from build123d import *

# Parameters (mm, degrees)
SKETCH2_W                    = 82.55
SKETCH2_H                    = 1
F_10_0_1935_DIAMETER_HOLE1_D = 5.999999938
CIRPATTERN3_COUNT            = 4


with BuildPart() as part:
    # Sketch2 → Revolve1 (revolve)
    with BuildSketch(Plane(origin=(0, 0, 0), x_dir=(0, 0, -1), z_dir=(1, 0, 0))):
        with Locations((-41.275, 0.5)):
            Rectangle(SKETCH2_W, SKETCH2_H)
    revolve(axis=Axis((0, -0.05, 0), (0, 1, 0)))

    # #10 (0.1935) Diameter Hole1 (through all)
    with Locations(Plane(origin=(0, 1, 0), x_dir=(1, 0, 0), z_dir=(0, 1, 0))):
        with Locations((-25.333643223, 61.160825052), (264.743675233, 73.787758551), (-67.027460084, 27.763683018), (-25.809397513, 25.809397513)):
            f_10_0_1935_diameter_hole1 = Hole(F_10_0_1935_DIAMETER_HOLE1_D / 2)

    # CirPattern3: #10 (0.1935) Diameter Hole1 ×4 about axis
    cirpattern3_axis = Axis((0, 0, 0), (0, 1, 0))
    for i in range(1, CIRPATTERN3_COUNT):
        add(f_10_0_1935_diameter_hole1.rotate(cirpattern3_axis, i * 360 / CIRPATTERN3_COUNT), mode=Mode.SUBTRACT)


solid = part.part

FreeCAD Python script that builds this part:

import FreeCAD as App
import Part
import Sketcher

V = App.Vector


def add_polygon(sketch, points):
    """Adds a closed chain of lines whose ends are joined by coincident constraints."""
    first, n = sketch.GeometryCount, len(points)
    for a, b in zip(points, points[1:] + points[:1]):
        sketch.addGeometry(Part.LineSegment(App.Vector(*a, 0), App.Vector(*b, 0)), False)
    for i in range(n):
        sketch.addConstraint(Sketcher.Constraint("Coincident", first + i, 2, first + (i + 1) % n, 1))

doc = App.newDocument("Part")
body = doc.addObject("PartDesign::Body", "Body")

sketch1 = body.newObject("Sketcher::SketchObject", "Sketch")
sketch1.AttachmentSupport = (doc.getObject("YZ_Plane"), [""])
sketch1.MapMode = "FlatFace"
add_polygon(sketch1, [(1, 82.55), (0, 82.55), (0, 0), (1, 0)])
sketch1.addConstraint(Sketcher.Constraint("Horizontal", 0))
sketch1.addConstraint(Sketcher.Constraint("Vertical", 1))
sketch1.addConstraint(Sketcher.Constraint("Horizontal", 2))
sketch1.addConstraint(Sketcher.Constraint("Vertical", 3))
sketch1.addConstraint(Sketcher.Constraint("Coincident", 1, 2, -1, 1))
sketch1.addConstraint(Sketcher.Constraint("DistanceX", 0, 2, 0, 1, 1.0))
sketch1.addConstraint(Sketcher.Constraint("DistanceY", 1, 2, 1, 1, 82.55))
revolution = body.newObject("PartDesign::Revolution", "Revolution")
revolution.Profile = sketch1
revolution.ReferenceAxis = (sketch1, ["H_Axis"])
revolution.Angle = 360

sketch2 = body.newObject("Sketcher::SketchObject", "Sketch001")
sketch2.AttachmentSupport = (doc.getObject("XZ_Plane"), [""])
sketch2.MapMode = "FlatFace"
sketch2.AttachmentOffset = App.Placement(V(0, 0, -1), App.Rotation())
sketch2.addGeometry(Part.Circle(V(-25.333643, -61.160825, 0), V(0, 0, 1), 3), False)
sketch2.addGeometry(Part.Circle(V(264.743675, -73.787759, 0), V(0, 0, 1), 3), False)
sketch2.addGeometry(Part.Circle(V(-67.02746, -27.763683, 0), V(0, 0, 1), 3), False)
sketch2.addGeometry(Part.Circle(V(-25.809398, -25.809398, 0), V(0, 0, 1), 3), False)
sketch2.addConstraint(Sketcher.Constraint("Equal", 0, 1))
sketch2.addConstraint(Sketcher.Constraint("Equal", 1, 2))
sketch2.addConstraint(Sketcher.Constraint("Equal", 2, 3))
sketch2.addConstraint(Sketcher.Constraint("Diameter", 0, 6.0))
sketch2.addConstraint(Sketcher.Constraint("DistanceY", 1, 3, -1, 1, 73.787759))
sketch2.addConstraint(Sketcher.Constraint("DistanceX", 2, 3, -1, 1, 67.02746))
sketch2.addConstraint(Sketcher.Constraint("DistanceX", 0, 3, 1, 3, 290.077318))
sketch2.addConstraint(Sketcher.Constraint("DistanceY", 1, 3, 3, 3, 47.978361))
sketch2.addConstraint(Sketcher.Constraint("DistanceX", 0, 3, -1, 1, 25.333643))
sketch2.addConstraint(Sketcher.Constraint("DistanceY", 0, 3, -1, 1, 61.160825))
sketch2.addConstraint(Sketcher.Constraint("DistanceY", 2, 3, -1, 1, 27.763683))
sketch2.addConstraint(Sketcher.Constraint("DistanceX", 3, 3, -1, 1, 25.809398))
doc.recompute()
hole = body.newObject("PartDesign::Hole", "Hole")
hole.Profile = sketch2
hole.ThreadType = "None"
hole.Diameter = 6
hole.DepthType = "ThroughAll"
hole.Reversed = True
doc.recompute()

polarpattern = body.newObject("PartDesign::PolarPattern", "PolarPattern")
polarpattern.Originals = [hole]
polarpattern.Axis = (doc.getObject("Y_Axis"), [""])
polarpattern.Angle = 360
polarpattern.Occurrences = 4
body.Tip = polarpattern

doc.recompute()
